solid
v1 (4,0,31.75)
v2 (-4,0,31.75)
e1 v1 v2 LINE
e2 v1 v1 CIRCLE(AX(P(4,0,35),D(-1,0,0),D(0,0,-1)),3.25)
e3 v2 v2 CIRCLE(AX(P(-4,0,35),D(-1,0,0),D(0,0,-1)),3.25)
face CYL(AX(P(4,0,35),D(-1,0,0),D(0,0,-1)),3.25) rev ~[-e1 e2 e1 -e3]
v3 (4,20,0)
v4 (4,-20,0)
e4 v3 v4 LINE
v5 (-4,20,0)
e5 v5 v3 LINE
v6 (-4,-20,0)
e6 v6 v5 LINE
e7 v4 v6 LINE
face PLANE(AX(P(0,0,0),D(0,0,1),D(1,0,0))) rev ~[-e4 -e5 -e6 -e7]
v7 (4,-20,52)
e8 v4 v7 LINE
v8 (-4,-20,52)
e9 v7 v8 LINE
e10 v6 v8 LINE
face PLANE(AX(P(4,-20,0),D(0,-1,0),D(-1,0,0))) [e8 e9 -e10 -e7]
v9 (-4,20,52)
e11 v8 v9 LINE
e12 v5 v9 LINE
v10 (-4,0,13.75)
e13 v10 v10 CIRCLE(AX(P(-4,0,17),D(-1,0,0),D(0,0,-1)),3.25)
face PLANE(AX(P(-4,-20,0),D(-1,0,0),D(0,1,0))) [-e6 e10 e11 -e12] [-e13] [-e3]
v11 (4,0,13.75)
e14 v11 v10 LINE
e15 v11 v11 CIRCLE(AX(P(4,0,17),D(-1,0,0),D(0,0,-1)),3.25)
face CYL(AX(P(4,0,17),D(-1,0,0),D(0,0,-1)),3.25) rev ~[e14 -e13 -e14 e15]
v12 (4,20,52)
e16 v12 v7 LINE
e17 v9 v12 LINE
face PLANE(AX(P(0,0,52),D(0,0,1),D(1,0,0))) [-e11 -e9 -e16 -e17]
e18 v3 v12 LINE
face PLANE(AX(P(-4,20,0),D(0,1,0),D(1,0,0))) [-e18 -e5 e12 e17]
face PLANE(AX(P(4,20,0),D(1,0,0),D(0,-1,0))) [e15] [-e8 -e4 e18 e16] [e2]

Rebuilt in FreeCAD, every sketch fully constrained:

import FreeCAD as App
import Part
import Sketcher
from FreeCAD import Vector
Q = App.Units.Quantity

doc = App.newDocument("Part")
body = doc.addObject("PartDesign::Body", "Body")

# Sketch on XY plane
sketch1 = body.newObject("Sketcher::SketchObject", "Sketch")
sketch1.AttachmentSupport = (doc.getObject("XY_Plane"), [""])
sketch1.MapMode = "FlatFace"
sketch1.addGeometry([
    Part.LineSegment(Vector(-4, -20, 0), Vector(4, -20, 0)),
    Part.LineSegment(Vector(4, -20, 0), Vector(4, 20, 0)),
    Part.LineSegment(Vector(4, 20, 0), Vector(-4, 20, 0)),
    Part.LineSegment(Vector(-4, 20, 0), Vector(-4, -20, 0)),
], False)
sketch1.addConstraint([
    Sketcher.Constraint("Coincident", 0, 2, 1, 1),
    Sketcher.Constraint("Coincident", 1, 2, 2, 1),
    Sketcher.Constraint("Coincident", 2, 2, 3, 1),
    Sketcher.Constraint("Coincident", 3, 2, 0, 1),
    Sketcher.Constraint("Horizontal", 0),
    Sketcher.Constraint("Vertical", 1),
    Sketcher.Constraint("Horizontal", 2),
    Sketcher.Constraint("Vertical", 3),
    Sketcher.Constraint("Symmetric", 0, 2, 2, 2, -1, 1),
    Sketcher.Constraint("DistanceX", 0, 1, 0, 2, Q("8 mm")),
    Sketcher.Constraint("DistanceY", 1, 1, 1, 2, Q("40 mm")),
])
pad1 = body.newObject("PartDesign::Pad", "Pad")
pad1.Profile = sketch1
pad1.Length = 52

# Sketch on YZ plane
sketch2 = body.newObject("Sketcher::SketchObject", "Sketch001")
sketch2.AttachmentSupport = (doc.getObject("YZ_Plane"), [""])
sketch2.MapMode = "FlatFace"
sketch2.AttachmentOffset = App.Placement(Vector(0, 0, 4), App.Rotation())
sketch2.addGeometry([
    Part.Circle(Vector(0, 35, 0), Vector(0, 0, 1), 3.2),
    Part.Circle(Vector(0, 17, 0), Vector(0, 0, 1), 3.2),
], False)
sketch2.addConstraint([
    Sketcher.Constraint("Equal", 0, 1),
    Sketcher.Constraint("PointOnObject", 0, 3, -2),
    Sketcher.Constraint("PointOnObject", 1, 3, -2),
    Sketcher.Constraint("Diameter", 0, Q("6.5 mm")),
    Sketcher.Constraint("DistanceY", -1, 1, 0, 3, Q("35 mm")),
    Sketcher.Constraint("DistanceY", -1, 1, 1, 3, Q("17 mm")),
])
doc.recompute()
hole = body.newObject("PartDesign::Hole", "Hole")
hole.Profile = sketch2
hole.ThreadType = "None"
hole.Diameter = 6.5
hole.DepthType = "Dimension"
hole.Depth = 35
hole.DrillPoint = "Angled"
hole.DrillPointAngle = 118

doc.recompute()
